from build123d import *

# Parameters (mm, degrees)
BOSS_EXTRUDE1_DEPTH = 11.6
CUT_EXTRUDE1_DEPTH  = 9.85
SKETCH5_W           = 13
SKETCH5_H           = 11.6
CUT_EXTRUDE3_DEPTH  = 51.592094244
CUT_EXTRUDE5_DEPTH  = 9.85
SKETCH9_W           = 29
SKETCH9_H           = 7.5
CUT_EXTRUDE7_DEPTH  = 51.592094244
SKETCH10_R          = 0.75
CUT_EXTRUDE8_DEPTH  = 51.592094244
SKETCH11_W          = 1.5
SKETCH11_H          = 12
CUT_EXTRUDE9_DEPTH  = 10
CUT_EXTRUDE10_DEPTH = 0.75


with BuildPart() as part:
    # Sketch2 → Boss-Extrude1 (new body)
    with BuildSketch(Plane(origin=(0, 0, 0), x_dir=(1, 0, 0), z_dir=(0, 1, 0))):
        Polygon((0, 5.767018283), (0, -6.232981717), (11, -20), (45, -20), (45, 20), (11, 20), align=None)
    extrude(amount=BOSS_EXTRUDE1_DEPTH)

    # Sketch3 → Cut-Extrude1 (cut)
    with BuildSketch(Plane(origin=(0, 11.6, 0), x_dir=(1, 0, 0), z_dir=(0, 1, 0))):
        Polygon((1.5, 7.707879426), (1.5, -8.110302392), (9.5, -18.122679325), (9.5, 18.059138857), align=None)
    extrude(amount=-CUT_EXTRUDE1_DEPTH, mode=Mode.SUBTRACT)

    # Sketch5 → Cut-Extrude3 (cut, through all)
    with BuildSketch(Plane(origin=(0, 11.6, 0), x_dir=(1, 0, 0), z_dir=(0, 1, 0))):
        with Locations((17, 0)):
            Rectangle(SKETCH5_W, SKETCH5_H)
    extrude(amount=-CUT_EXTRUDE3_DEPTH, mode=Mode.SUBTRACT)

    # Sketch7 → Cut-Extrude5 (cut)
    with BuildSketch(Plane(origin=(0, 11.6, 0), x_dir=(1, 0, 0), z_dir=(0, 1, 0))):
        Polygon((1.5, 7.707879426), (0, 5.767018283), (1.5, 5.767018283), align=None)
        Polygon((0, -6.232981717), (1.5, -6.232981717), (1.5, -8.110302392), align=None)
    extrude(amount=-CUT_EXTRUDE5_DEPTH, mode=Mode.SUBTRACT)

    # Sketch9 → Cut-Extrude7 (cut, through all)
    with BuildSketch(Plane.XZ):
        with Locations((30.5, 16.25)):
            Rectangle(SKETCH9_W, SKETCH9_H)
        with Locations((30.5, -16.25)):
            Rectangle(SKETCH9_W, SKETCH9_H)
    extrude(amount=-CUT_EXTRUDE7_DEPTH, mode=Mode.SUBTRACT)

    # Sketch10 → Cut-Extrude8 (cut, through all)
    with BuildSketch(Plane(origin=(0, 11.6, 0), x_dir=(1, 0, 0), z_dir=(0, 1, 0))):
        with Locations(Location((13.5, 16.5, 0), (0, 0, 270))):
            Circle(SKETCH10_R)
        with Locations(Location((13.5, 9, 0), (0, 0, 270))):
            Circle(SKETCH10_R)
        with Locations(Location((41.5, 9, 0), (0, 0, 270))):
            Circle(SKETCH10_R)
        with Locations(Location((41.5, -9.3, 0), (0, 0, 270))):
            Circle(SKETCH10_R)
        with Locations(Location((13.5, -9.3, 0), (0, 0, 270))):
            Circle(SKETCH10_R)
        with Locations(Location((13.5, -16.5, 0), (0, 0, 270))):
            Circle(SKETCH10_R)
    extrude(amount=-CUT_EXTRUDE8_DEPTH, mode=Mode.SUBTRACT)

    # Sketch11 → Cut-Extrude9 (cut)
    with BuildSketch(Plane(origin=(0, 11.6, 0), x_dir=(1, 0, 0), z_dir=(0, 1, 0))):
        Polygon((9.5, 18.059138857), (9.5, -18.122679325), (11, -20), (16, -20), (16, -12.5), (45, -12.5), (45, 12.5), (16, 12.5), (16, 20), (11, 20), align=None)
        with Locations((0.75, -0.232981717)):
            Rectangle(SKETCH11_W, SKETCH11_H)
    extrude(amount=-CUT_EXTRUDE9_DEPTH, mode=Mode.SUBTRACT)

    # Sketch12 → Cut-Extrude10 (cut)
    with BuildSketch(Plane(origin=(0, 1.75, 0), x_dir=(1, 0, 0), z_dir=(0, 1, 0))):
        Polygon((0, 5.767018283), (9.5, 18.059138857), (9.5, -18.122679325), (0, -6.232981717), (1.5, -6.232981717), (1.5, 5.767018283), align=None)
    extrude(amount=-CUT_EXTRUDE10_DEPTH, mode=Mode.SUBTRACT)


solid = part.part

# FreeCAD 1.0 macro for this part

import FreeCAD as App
import Part
import Sketcher

V = App.Vector
Q = App.Units.Quantity

doc = App.newDocument("Part")
params = doc.addObject("Spreadsheet::Sheet", "Params")
for row, (alias, value) in enumerate([
    ("sketch1_width", "34 mm"),
    ("sketch1_height", "12 mm"),
    ("sketch1_height2", "40 mm"),
    ("pad1_length", "11.6 mm"),
    ("pocket1_length", "9.85 mm"),
    ("sketch3_width", "13 mm"),
    ("sketch3_height", "11.6 mm"),
    ("sketch4_width", "1.5 mm"),
    ("pocket3_length", "9.85 mm"),
    ("sketch5_width", "29 mm"),
    ("sketch5_height", "7.5 mm"),
    ("sketch6_diameter", "1.5 mm"),
    ("sketch7_width", "5 mm"),
    ("sketch7_width2", "29 mm"),
    ("sketch7_height", "25 mm"),
    ("sketch7_height2", "12 mm"),
    ("sketch7_width3", "1.5 mm"),
    ("pocket6_length", "10 mm"),
    ("sketch8_height", "12 mm"),
    ("sketch8_width", "1.5 mm"),
    ("pocket7_length", "0.75 mm"),
], start=1):
    params.set(f"A{row}", alias)
    params.set(f"B{row}", "=" + value)
    params.setAlias(f"B{row}", alias)

body = doc.addObject("PartDesign::Body", "Body")

# Sketch on XZ plane
sketch1 = body.newObject("Sketcher::SketchObject", "Sketch")
sketch1.AttachmentSupport = (doc.getObject("XZ_Plane"), [""])
sketch1.MapMode = "FlatFace"
sketch1.addGeometry([
    Part.LineSegment(V(0, -6, 0), V(0, 6, 0)),  # 0
    Part.LineSegment(V(0, 6, 0), V(11, 20, 0)),  # 1
    Part.LineSegment(V(11, 20, 0), V(45, 20, 0)),  # 2
    Part.LineSegment(V(45, 20, 0), V(45, -20, 0)),  # 3
    Part.LineSegment(V(45, -20, 0), V(11, -20, 0)),  # 4
    Part.LineSegment(V(11, -20, 0), V(0, -6, 0)),  # 5
], False)
sketch1.addConstraint([
    Sketcher.Constraint("Coincident", 0, 2, 1, 1),
    Sketcher.Constraint("Coincident", 1, 2, 2, 1),
    Sketcher.Constraint("Coincident", 2, 2, 3, 1),
    Sketcher.Constraint("Coincident", 3, 2, 4, 1),
    Sketcher.Constraint("Coincident", 4, 2, 5, 1),
    Sketcher.Constraint("Coincident", 5, 2, 0, 1),
    Sketcher.Constraint("Vertical", 0),
    Sketcher.Constraint("Horizontal", 2),
    Sketcher.Constraint("Vertical", 3),
    Sketcher.Constraint("Horizontal", 4),
    Sketcher.Constraint("Symmetric", 1, 2, 4, 2, -1),
    Sketcher.Constraint("PointOnObject", 0, 2, -2),
    Sketcher.Constraint("DistanceX", 2, 1, 2, 2, Q("34 mm")),
    Sketcher.Constraint("DistanceY", 0, 1, 0, 2, Q("12 mm")),
    Sketcher.Constraint("DistanceY", 3, 2, 3, 1, Q("40 mm")),
    Sketcher.Constraint("DistanceX", -1, 1, 1, 2, Q("11 mm")),
    Sketcher.Constraint("DistanceY", -1, 1, 0, 2, Q("6.232982 mm")),
])
sketch1.setExpression("Constraints[12]", "Params.sketch1_width")
sketch1.setExpression("Constraints[13]", "Params.sketch1_height")
sketch1.setExpression("Constraints[14]", "Params.sketch1_height2")
pad1 = body.newObject("PartDesign::Pad", "Pad")
pad1.Profile = sketch1
pad1.setExpression("Length", "Params.pad1_length")
pad1.Reversed = True

# Sketch on XZ plane
sketch2 = body.newObject("Sketcher::SketchObject", "Sketch001")
sketch2.AttachmentSupport = (doc.getObject("XZ_Plane"), [""])
sketch2.MapMode = "FlatFace"
sketch2.AttachmentOffset = App.Placement(V(0, 0, -11.6), App.Rotation())
sketch2.addGeometry([
    Part.LineSegment(V(2, -8, 0), V(2, 8, 0)),
    Part.LineSegment(V(2, 8, 0), V(10, 18, 0)),
    Part.LineSegment(V(10, 18, 0), V(10, -18, 0)),
    Part.LineSegment(V(10, -18, 0), V(2, -8, 0)),
], False)
sketch2.addConstraint([
    Sketcher.Constraint("Coincident", 0, 2, 1, 1),
    Sketcher.Constraint("Coincident", 1, 2, 2, 1),
    Sketcher.Constraint("Coincident", 2, 2, 3, 1),
    Sketcher.Constraint("Coincident", 3, 2, 0, 1),
    Sketcher.Constraint("Vertical", 0),
    Sketcher.Constraint("Vertical", 2),
    Sketcher.Constraint("DistanceX", 0, 2, 1, 2, Q("8 mm")),
    Sketcher.Constraint("DistanceX", -1, 1, 0, 2, Q("1.5 mm")),
    Sketcher.Constraint("DistanceY", 0, 1, 0, 2, Q("15.818182 mm")),
    Sketcher.Constraint("DistanceY", 2, 2, 2, 1, Q("36.181818 mm")),
    Sketcher.Constraint("DistanceY", -1, 1, 1, 2, Q("18.122679 mm")),
    Sketcher.Constraint("DistanceY", 3, 2, -1, 1, Q("7.707879 mm")),
])
pocket1 = body.newObject("PartDesign::Pocket", "Pocket")
pocket1.Profile = sketch2
pocket1.setExpression("Length", "Params.pocket1_length")
pocket1.Reversed = True

# Sketch on XZ plane
sketch3 = body.newObject("Sketcher::SketchObject", "Sketch002")
sketch3.AttachmentSupport = (doc.getObject("XZ_Plane"), [""])
sketch3.MapMode = "FlatFace"
sketch3.AttachmentOffset = App.Placement(V(0, 0, -11.6), App.Rotation())
sketch3.addGeometry([
    Part.LineSegment(V(10, -6, 0), V(10, 6, 0)),
    Part.LineSegment(V(10, 6, 0), V(24, 6, 0)),
    Part.LineSegment(V(24, 6, 0), V(24, -6, 0)),
    Part.LineSegment(V(24, -6, 0), V(10, -6, 0)),
], False)
sketch3.addConstraint([
    Sketcher.Constraint("Coincident", 0, 2, 1, 1),
    Sketcher.Constraint("Coincident", 1, 2, 2, 1),
    Sketcher.Constraint("Coincident", 2, 2, 3, 1),
    Sketcher.Constraint("Coincident", 3, 2, 0, 1),
    Sketcher.Constraint("Vertical", 0),
    Sketcher.Constraint("Horizontal", 1),
    Sketcher.Constraint("Vertical", 2),
    Sketcher.Constraint("Horizontal", 3),
    Sketcher.Constraint("DistanceX", 1, 1, 1, 2, Q("13 mm")),
    Sketcher.Constraint("DistanceY", 0, 1, 0, 2, Q("11.6 mm")),
    Sketcher.Constraint("DistanceX", -1, 1, 0, 2, Q("10.5 mm")),
    Sketcher.Constraint("DistanceY", -1, 1, 0, 2, Q("5.8 mm")),
])
sketch3.setExpression("Constraints[8]", "Params.sketch3_width")
sketch3.setExpression("Constraints[9]", "Params.sketch3_height")
pocket2 = body.newObject("PartDesign::Pocket", "Pocket001")
pocket2.Profile = sketch3
pocket2.Type = "ThroughAll"
pocket2.Reversed = True

# Sketch on XZ plane
sketch4 = body.newObject("Sketcher::SketchObject", "Sketch003")
sketch4.AttachmentSupport = (doc.getObject("XZ_Plane"), [""])
sketch4.MapMode = "FlatFace"
sketch4.AttachmentOffset = App.Placement(V(0, 0, -11.6), App.Rotation())
sketch4.addGeometry([
    Part.LineSegment(V(1.5, -7.7, 0), V(0, -5.8, 0)),  # 0
    Part.LineSegment(V(0, -5.8, 0), V(1.5, -5.8, 0)),  # 1
    Part.LineSegment(V(1.5, -5.8, 0), V(1.5, -7.7, 0)),  # 2
    Part.LineSegment(V(1.5, 6.2, 0), V(0, 6.2, 0)),  # 3
    Part.LineSegment(V(0, 6.2, 0), V(1.5, 8.1, 0)),  # 4
    Part.LineSegment(V(1.5, 8.1, 0), V(1.5, 6.2, 0)),  # 5
], False)
sketch4.addConstraint([
    Sketcher.Constraint("Coincident", 0, 2, 1, 1),
    Sketcher.Constraint("Coincident", 1, 2, 2, 1),
    Sketcher.Constraint("Coincident", 2, 2, 0, 1),
    Sketcher.Constraint("Coincident", 3, 2, 4, 1),
    Sketcher.Constraint("Coincident", 4, 2, 5, 1),
    Sketcher.Constraint("Coincident", 5, 2, 3, 1),
    Sketcher.Constraint("Horizontal", 1),
    Sketcher.Constraint("Vertical", 2),
    Sketcher.Constraint("Horizontal", 3),
    Sketcher.Constraint("Vertical", 5),
    Sketcher.Constraint("PointOnObject", 0, 2, -2),
    Sketcher.Constraint("PointOnObject", 3, 2, -2),
    Sketcher.Constraint("Vertical", 2, 2, 4, 2),
    Sketcher.Constraint("DistanceX", 1, 1, 1, 2, Q("1.5 mm")),
    Sketcher.Constraint("DistanceY", 0, 2, 3, 2, Q("12 mm")),
    Sketcher.Constraint("DistanceY", 2, 2, 2, 1, Q("1.940861 mm")),
    Sketcher.Constraint("DistanceY", 5, 2, 5, 1, Q("1.877321 mm")),
    Sketcher.Constraint("DistanceY", 0, 2, -1, 1, Q("5.767018 mm")),
])
sketch4.setExpression("Constraints[13]", "Params.sketch4_width")
pocket3 = body.newObject("PartDesign::Pocket", "Pocket002")
pocket3.Profile = sketch4
pocket3.setExpression("Length", "Params.pocket3_length")
pocket3.Reversed = True

# Sketch on XZ plane
sketch5 = body.newObject("Sketcher::SketchObject", "Sketch004")
sketch5.AttachmentSupport = (doc.getObject("XZ_Plane"), [""])
sketch5.MapMode = "FlatFace"
sketch5.addGeometry([
    Part.LineSegment(V(16, 20, 0), V(16, 12, 0)),  # 0
    Part.LineSegment(V(16, 12, 0), V(45, 12, 0)),  # 1
    Part.LineSegment(V(45, 12, 0), V(45, 20, 0)),  # 2
    Part.LineSegment(V(45, 20, 0), V(16, 20, 0)),  # 3
    Part.LineSegment(V(16, -12, 0), V(16, -20, 0)),  # 4
    Part.LineSegment(V(16, -20, 0), V(45, -20, 0)),  # 5
    Part.LineSegment(V(45, -20, 0), V(45, -12, 0)),  # 6
    Part.LineSegment(V(45, -12, 0), V(16, -12, 0)),  # 7
], False)
sketch5.addConstraint([
    Sketcher.Constraint("Coincident", 0, 2, 1, 1),
    Sketcher.Constraint("Coincident", 1, 2, 2, 1),
    Sketcher.Constraint("Coincident", 2, 2, 3, 1),
    Sketcher.Constraint("Coincident", 3, 2, 0, 1),
    Sketcher.Constraint("Coincident", 4, 2, 5, 1),
    Sketcher.Constraint("Coincident", 5, 2, 6, 1),
    Sketcher.Constraint("Coincident", 6, 2, 7, 1),
    Sketcher.Constraint("Coincident", 7, 2, 4, 1),
    Sketcher.Constraint("Vertical", 0),
    Sketcher.Constraint("Horizontal", 1),
    Sketcher.Constraint("Vertical", 2),
    Sketcher.Constraint("Horizontal", 3),
    Sketcher.Constraint("Vertical", 4),
    Sketcher.Constraint("Horizontal", 5),
    Sketcher.Constraint("Vertical", 6),
    Sketcher.Constraint("Horizontal", 7),
    Sketcher.Constraint("Symmetric", 3, 2, 4, 2, -1),
    Sketcher.Constraint("Symmetric", 1, 2, 6, 2, -1),
    Sketcher.Constraint("DistanceX", 1, 1, 1, 2, Q("29 mm")),
    Sketcher.Constraint("DistanceY", 0, 2, 0, 1, Q("7.5 mm")),
    Sketcher.Constraint("DistanceX", -1, 1, 0, 2, Q("16 mm")),
    Sketcher.Constraint("DistanceY", -1, 1, 2, 2, Q("20 mm")),
])
sketch5.setExpression("Constraints[18]", "Params.sketch5_width")
sketch5.setExpression("Constraints[19]", "Params.sketch5_height")
pocket4 = body.newObject("PartDesign::Pocket", "Pocket003")
pocket4.Profile = sketch5
pocket4.Type = "ThroughAll"

# Sketch on XZ plane
sketch6 = body.newObject("Sketcher::SketchObject", "Sketch005")
sketch6.AttachmentSupport = (doc.getObject("XZ_Plane"), [""])
sketch6.MapMode = "FlatFace"
sketch6.AttachmentOffset = App.Placement(V(0, 0, -11.6), App.Rotation())
sketch6.addGeometry([
    Part.Circle(V(13.5, -16.5, 0), V(0, 0, 1), 0.8),  # 0
    Part.Circle(V(13.5, -9, 0), V(0, 0, 1), 0.8),  # 1
    Part.Circle(V(41.5, -9, 0), V(0, 0, 1), 0.8),  # 2
    Part.Circle(V(41.5, 9.3, 0), V(0, 0, 1), 0.8),  # 3
    Part.Circle(V(13.5, 9.3, 0), V(0, 0, 1), 0.8),  # 4
    Part.Circle(V(13.5, 16.5, 0), V(0, 0, 1), 0.8),  # 5
], False)
sketch6.addConstraint([
    Sketcher.Constraint("Equal", 0, 1),
    Sketcher.Constraint("Equal", 1, 2),
    Sketcher.Constraint("Equal", 2, 3),
    Sketcher.Constraint("Equal", 3, 4),
    Sketcher.Constraint("Equal", 4, 5),
    Sketcher.Constraint("Symmetric", 0, 3, 5, 3, -1),
    Sketcher.Constraint("Horizontal", 1, 3, 2, 3),
    Sketcher.Constraint("Horizontal", 3, 3, 4, 3),
    Sketcher.Constraint("Vertical", 0, 3, 1, 3),
    Sketcher.Constraint("Vertical", 2, 3, 3, 3),
    Sketcher.Constraint("Vertical", 1, 3, 4, 3),
    Sketcher.Constraint("Diameter", 0, Q("1.5 mm")),
    Sketcher.Constraint("DistanceY", 1, 3, -1, 1, Q("9 mm")),
    Sketcher.Constraint("DistanceX", 1, 3, 2, 3, Q("28 mm")),
    Sketcher.Constraint("DistanceY", 0, 3, 5, 3, Q("33 mm")),
    Sketcher.Constraint("DistanceX", -1, 1, 0, 3, Q("13.5 mm")),
    Sketcher.Constraint("DistanceY", -1, 1, 3, 3, Q("9.3 mm")),
])
sketch6.setExpression("Constraints[11]", "Params.sketch6_diameter")
pocket5 = body.newObject("PartDesign::Pocket", "Pocket004")
pocket5.Profile = sketch6
pocket5.Type = "ThroughAll"
pocket5.Reversed = True

# Sketch on XZ plane
sketch7 = body.newObject("Sketcher::SketchObject", "Sketch006")
sketch7.AttachmentSupport = (doc.getObject("XZ_Plane"), [""])
sketch7.MapMode = "FlatFace"
sketch7.AttachmentOffset = App.Placement(V(0, 0, -11.6), App.Rotation())
sketch7.addGeometry([
    Part.LineSegment(V(9.5, -18.1, 0), V(9.5, 18.1, 0)),  # 0
    Part.LineSegment(V(9.5, 18.1, 0), V(11, 20, 0)),  # 1
    Part.LineSegment(V(11, 20, 0), V(16, 20, 0)),  # 2
    Part.LineSegment(V(16, 20, 0), V(16, 12.5, 0)),  # 3
    Part.LineSegment(V(16, 12.5, 0), V(45, 12.5, 0)),  # 4
    Part.LineSegment(V(45, 12.5, 0), V(45, -12.5, 0)),  # 5
    Part.LineSegment(V(45, -12.5, 0), V(16, -12.5, 0)),  # 6
    Part.LineSegment(V(16, -12.5, 0), V(16, -20, 0)),  # 7
    Part.LineSegment(V(16, -20, 0), V(11, -20, 0)),  # 8
    Part.LineSegment(V(11, -20, 0), V(9.5, -18.1, 0)),  # 9
    Part.LineSegment(V(0, -5.8, 0), V(0, 6.2, 0)),  # 10
    Part.LineSegment(V(0, 6.2, 0), V(1.5, 6.2, 0)),  # 11
    Part.LineSegment(V(1.5, 6.2, 0), V(1.5, -5.8, 0)),  # 12
    Part.LineSegment(V(1.5, -5.8, 0), V(0, -5.8, 0)),  # 13
], False)
sketch7.addConstraint([
    Sketcher.Constraint("Coincident", 0, 2, 1, 1),
    Sketcher.Constraint("Coincident", 1, 2, 2, 1),
    Sketcher.Constraint("Coincident", 2, 2, 3, 1),
    Sketcher.Constraint("Coincident", 3, 2, 4, 1),
    Sketcher.Constraint("Coincident", 4, 2, 5, 1),
    Sketcher.Constraint("Coincident", 5, 2, 6, 1),
    Sketcher.Constraint("Coincident", 6, 2, 7, 1),
    Sketcher.Constraint("Coincident", 7, 2, 8, 1),
    Sketcher.Constraint("Coincident", 8, 2, 9, 1),
    Sketcher.Constraint("Coincident", 9, 2, 0, 1),
    Sketcher.Constraint("Coincident", 10, 2, 11, 1),
    Sketcher.Constraint("Coincident", 11, 2, 12, 1),
    Sketcher.Constraint("Coincident", 12, 2, 13, 1),
    Sketcher.Constraint("Coincident", 13, 2, 10, 1),
    Sketcher.Constraint("Vertical", 0),
    Sketcher.Constraint("Horizontal", 2),
    Sketcher.Constraint("Vertical", 3),
    Sketcher.Constraint("Horizontal", 4),
    Sketcher.Constraint("Vertical", 5),
    Sketcher.Constraint("Horizontal", 6),
    Sketcher.Constraint("Vertical", 7),
    Sketcher.Constraint("Horizontal", 8),
    Sketcher.Constraint("Vertical", 10),
    Sketcher.Constraint("Horizontal", 11),
    Sketcher.Constraint("Vertical", 12),
    Sketcher.Constraint("Horizontal", 13),
    Sketcher.Constraint("Symmetric", 3, 2, 6, 2, -1),
    Sketcher.Constraint("Symmetric", 1, 2, 8, 2, -1),
    Sketcher.Constraint("PointOnObject", 10, 2, -2),
    Sketcher.Constraint("DistanceX", 2, 1, 2, 2, Q("5 mm")),
    Sketcher.Constraint("DistanceX", 4, 1, 4, 2, Q("29 mm")),
    Sketcher.Constraint("DistanceY", 5, 2, 5, 1, Q("25 mm")),
    Sketcher.Constraint("DistanceY", 10, 1, 10, 2, Q("12 mm")),
    Sketcher.Constraint("DistanceX", 11, 1, 11, 2, Q("1.5 mm")),
    Sketcher.Constraint("DistanceY", 3, 2, 3, 1, Q("7.5 mm")),
    Sketcher.Constraint("DistanceX", -1, 1, 1, 2, Q("11 mm")),
    Sketcher.Constraint("DistanceX", 11, 2, 0, 2, Q("8 mm")),
    Sketcher.Constraint("DistanceY", 0, 1, 0, 2, Q("36.181818 mm")),
    Sketcher.Constraint("DistanceY", -1, 1, 0, 2, Q("18.122679 mm")),
    Sketcher.Constraint("DistanceY", -1, 1, 10, 2, Q("6.232982 mm")),
])
sketch7.setExpression("Constraints[29]", "Params.sketch7_width")
sketch7.setExpression("Constraints[30]", "Params.sketch7_width2")
sketch7.setExpression("Constraints[31]", "Params.sketch7_height")
sketch7.setExpression("Constraints[32]", "Params.sketch7_height2")
sketch7.setExpression("Constraints[33]", "Params.sketch7_width3")
pocket6 = body.newObject("PartDesign::Pocket", "Pocket005")
pocket6.Profile = sketch7
pocket6.setExpression("Length", "Params.pocket6_length")
pocket6.Reversed = True

# Sketch on XZ plane
sketch8 = body.newObject("Sketcher::SketchObject", "Sketch007")
sketch8.AttachmentSupport = (doc.getObject("XZ_Plane"), [""])
sketch8.MapMode = "FlatFace"
sketch8.AttachmentOffset = App.Placement(V(0, 0, -1.75), App.Rotation())
sketch8.addGeometry([
    Part.LineSegment(V(9.5, -18.1, 0), V(0, -5.8, 0)),  # 0
    Part.LineSegment(V(0, -5.8, 0), V(1.5, -5.8, 0)),  # 1
    Part.LineSegment(V(1.5, -5.8, 0), V(1.5, 6.2, 0)),  # 2
    Part.LineSegment(V(1.5, 6.2, 0), V(0, 6.2, 0)),  # 3
    Part.LineSegment(V(0, 6.2, 0), V(9.5, 18.1, 0)),  # 4
    Part.LineSegment(V(9.5, 18.1, 0), V(9.5, -18.1, 0)),  # 5
], False)
sketch8.addConstraint([
    Sketcher.Constraint("Coincident", 0, 2, 1, 1),
    Sketcher.Constraint("Coincident", 1, 2, 2, 1),
    Sketcher.Constraint("Coincident", 2, 2, 3, 1),
    Sketcher.Constraint("Coincident", 3, 2, 4, 1),
    Sketcher.Constraint("Coincident", 4, 2, 5, 1),
    Sketcher.Constraint("Coincident", 5, 2, 0, 1),
    Sketcher.Constraint("Horizontal", 1),
    Sketcher.Constraint("Vertical", 2),
    Sketcher.Constraint("Horizontal", 3),
    Sketcher.Constraint("Vertical", 5),
    Sketcher.Constraint("PointOnObject", 0, 2, -2),
    Sketcher.Constraint("PointOnObject", 3, 2, -2),
    Sketcher.Constraint("DistanceY", 2, 1, 2, 2, Q("12 mm")),
    Sketcher.Constraint("DistanceX", 1, 1, 1, 2, Q("1.5 mm")),
    Sketcher.Constraint("DistanceX", 2, 2, 4, 2, Q("8 mm")),
    Sketcher.Constraint("Distance", 4, Q("15.2189 mm")),
    Sketcher.Constraint("DistanceY", 5, 2, 5, 1, Q("36.181818 mm")),
    Sketcher.Constraint("DistanceY", 0, 2, -1, 1, Q("5.767018 mm")),
])
sketch8.setExpression("Constraints[12]", "Params.sketch8_height")
sketch8.setExpression("Constraints[13]", "Params.sketch8_width")
pocket7 = body.newObject("PartDesign::Pocket", "Pocket006")
pocket7.Profile = sketch8
pocket7.setExpression("Length", "Params.pocket7_length")
pocket7.Reversed = True

doc.recompute()
